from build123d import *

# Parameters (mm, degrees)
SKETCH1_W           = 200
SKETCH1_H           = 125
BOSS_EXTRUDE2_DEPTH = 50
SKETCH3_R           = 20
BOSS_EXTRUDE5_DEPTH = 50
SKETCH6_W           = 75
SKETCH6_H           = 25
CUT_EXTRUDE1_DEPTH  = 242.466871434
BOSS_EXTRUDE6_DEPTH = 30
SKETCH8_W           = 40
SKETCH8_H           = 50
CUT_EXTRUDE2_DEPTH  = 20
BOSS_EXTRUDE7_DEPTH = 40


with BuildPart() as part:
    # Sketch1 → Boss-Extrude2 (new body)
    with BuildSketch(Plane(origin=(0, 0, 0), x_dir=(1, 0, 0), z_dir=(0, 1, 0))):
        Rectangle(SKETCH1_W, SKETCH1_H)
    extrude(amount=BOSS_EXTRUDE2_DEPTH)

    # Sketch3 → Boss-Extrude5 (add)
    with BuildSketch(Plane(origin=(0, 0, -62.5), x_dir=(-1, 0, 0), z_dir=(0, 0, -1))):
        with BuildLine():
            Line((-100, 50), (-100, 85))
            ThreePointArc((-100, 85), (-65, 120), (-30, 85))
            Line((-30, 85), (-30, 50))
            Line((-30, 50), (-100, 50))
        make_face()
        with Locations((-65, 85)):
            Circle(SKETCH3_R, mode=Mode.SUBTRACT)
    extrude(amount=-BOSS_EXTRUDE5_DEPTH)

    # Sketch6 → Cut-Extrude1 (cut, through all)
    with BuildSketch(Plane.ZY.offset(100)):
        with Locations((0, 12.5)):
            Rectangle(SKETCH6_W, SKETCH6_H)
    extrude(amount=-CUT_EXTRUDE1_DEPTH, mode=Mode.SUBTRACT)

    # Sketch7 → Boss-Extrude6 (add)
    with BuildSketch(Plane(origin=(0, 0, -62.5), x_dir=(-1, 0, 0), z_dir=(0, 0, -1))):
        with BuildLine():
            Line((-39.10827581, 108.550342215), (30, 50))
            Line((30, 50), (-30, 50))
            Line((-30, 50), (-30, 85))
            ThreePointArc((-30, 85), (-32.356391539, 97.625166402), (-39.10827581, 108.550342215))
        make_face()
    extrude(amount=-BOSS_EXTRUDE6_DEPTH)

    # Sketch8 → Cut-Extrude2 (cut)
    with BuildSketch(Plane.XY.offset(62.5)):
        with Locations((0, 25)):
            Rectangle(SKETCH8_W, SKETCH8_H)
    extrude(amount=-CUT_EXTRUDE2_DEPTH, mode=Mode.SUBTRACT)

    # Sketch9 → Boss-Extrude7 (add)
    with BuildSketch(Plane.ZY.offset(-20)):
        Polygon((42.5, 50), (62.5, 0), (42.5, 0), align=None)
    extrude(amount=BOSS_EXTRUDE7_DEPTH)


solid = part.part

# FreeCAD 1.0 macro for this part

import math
import FreeCAD as App
import Part
import Sketcher
Q = App.Units.Quantity


def add_polygon(sketch, points):
    """Adds a closed chain of lines whose ends are joined by coincident constraints."""
    first, n = sketch.GeometryCount, len(points)
    for a, b in zip(points, points[1:] + points[:1]):
        sketch.addGeometry(Part.LineSegment(App.Vector(*a, 0), App.Vector(*b, 0)), False)
    for i in range(n):
        sketch.addConstraint(Sketcher.Constraint("Coincident", first + i, 2, first + (i + 1) % n, 1))

doc = App.newDocument("Part")
body = doc.addObject("PartDesign::Body", "Body")

# Sketch on XZ plane
sketch1 = doc.addObject("Sketcher::SketchObject", "Sketch")
body.addObject(sketch1)
sketch1.AttachmentSupport = (doc.XZ_Plane, [""])
sketch1.MapMode = "FlatFace"
add_polygon(sketch1, [(-100, -62), (-100, 62), (100, 62), (100, -62)])  # lines 0-3
sketch1.addConstraint([
    Sketcher.Constraint("Vertical", 0),
    Sketcher.Constraint("Horizontal", 1),
    Sketcher.Constraint("Vertical", 2),
    Sketcher.Constraint("Horizontal", 3),
    Sketcher.Constraint("Symmetric", 0, 2, 2, 2, -1, 1),
    Sketcher.Constraint("DistanceX", 1, 1, 1, 2, Q("200 mm")),
    Sketcher.Constraint("DistanceY", 0, 1, 0, 2, Q("125 mm")),
])
pad1 = doc.addObject("PartDesign::Pad", "Pad")
body.addObject(pad1)
pad1.Profile = sketch1
pad1.Length = 50
pad1.Reversed = True

# Sketch on XY plane
sketch2 = doc.addObject("Sketcher::SketchObject", "Sketch001")
body.addObject(sketch2)
sketch2.AttachmentSupport = (doc.XY_Plane, [""])
sketch2.MapMode = "FlatFace"
sketch2.AttachmentOffset = App.Placement(App.Vector(0, 0, -62.5), App.Rotation())
sketch2.addGeometry([
    Part.LineSegment(App.Vector(100, 85, 0), App.Vector(100, 50, 0)),  # 0
    Part.LineSegment(App.Vector(100, 50, 0), App.Vector(30, 50, 0)),  # 1
    Part.LineSegment(App.Vector(30, 50, 0), App.Vector(30, 85, 0)),  # 2
    Part.ArcOfCircle(Part.Circle(App.Vector(65, 85, 0), App.Vector(0, 0, 1), 35), math.radians(0), math.radians(180)),  # 3
    Part.Circle(App.Vector(65, 85, 0), App.Vector(0, 0, 1), 20),  # 4
], False)
sketch2.addConstraint([
    Sketcher.Constraint("Coincident", 0, 2, 1, 1),
    Sketcher.Constraint("Coincident", 1, 2, 2, 1),
    Sketcher.Constraint("Tangent", 2, 2, 3, 2),
    Sketcher.Constraint("Tangent", 3, 1, 0, 1),
    Sketcher.Constraint("Vertical", 0),
    Sketcher.Constraint("Horizontal", 1),
    Sketcher.Constraint("Vertical", 2),
    Sketcher.Constraint("Coincident", 4, 3, 3, 3),
    Sketcher.Constraint("Diameter", 4, Q("40 mm")),
    Sketcher.Constraint("Radius", 3, Q("35 mm")),
    Sketcher.Constraint("DistanceY", 0, 2, 0, 1, Q("35 mm")),
    Sketcher.Constraint("DistanceX", -1, 1, 3, 3, Q("65 mm")),
    Sketcher.Constraint("DistanceY", -1, 1, 3, 3, Q("85 mm")),
])
pad2 = doc.addObject("PartDesign::Pad", "Pad001")
body.addObject(pad2)
pad2.Profile = sketch2
pad2.Length = 50

# Sketch on YZ plane
sketch3 = doc.addObject("Sketcher::SketchObject", "Sketch002")
body.addObject(sketch3)
sketch3.AttachmentSupport = (doc.YZ_Plane, [""])
sketch3.MapMode = "FlatFace"
sketch3.AttachmentOffset = App.Placement(App.Vector(0, 0, -100), App.Rotation())
add_polygon(sketch3, [(25, -38), (0, -38), (0, 38), (25, 38)])  # lines 0-3
sketch3.addConstraint([
    Sketcher.Constraint("Horizontal", 0),
    Sketcher.Constraint("Vertical", 1),
    Sketcher.Constraint("Horizontal", 2),
    Sketcher.Constraint("Vertical", 3),
    Sketcher.Constraint("Symmetric", 0, 2, 1, 2, -1, 1),
    Sketcher.Constraint("DistanceX", 0, 2, 0, 1, Q("25 mm")),
    Sketcher.Constraint("DistanceY", 1, 1, 1, 2, Q("75 mm")),
])
pocket1 = doc.addObject("PartDesign::Pocket", "Pocket")
body.addObject(pocket1)
pocket1.Profile = sketch3
pocket1.Type = "ThroughAll"
pocket1.Reversed = True

# Sketch on XY plane
sketch4 = doc.addObject("Sketcher::SketchObject", "Sketch003")
body.addObject(sketch4)
sketch4.AttachmentSupport = (doc.XY_Plane, [""])
sketch4.MapMode = "FlatFace"
sketch4.AttachmentOffset = App.Placement(App.Vector(0, 0, -62.5), App.Rotation())
sketch4.addGeometry([
    Part.LineSegment(App.Vector(-30, 50, 0), App.Vector(39, 109, 0)),
    Part.ArcOfCircle(Part.Circle(App.Vector(65, 85, 0), App.Vector(0, 0, 1), 35), math.radians(138), math.radians(180)),
    Part.LineSegment(App.Vector(30, 85, 0), App.Vector(30, 50, 0)),
    Part.LineSegment(App.Vector(30, 50, 0), App.Vector(-30, 50, 0)),
], False)
sketch4.addConstraint([
    Sketcher.Constraint("Coincident", 0, 2, 1, 1),
    Sketcher.Constraint("Tangent", 1, 2, 2, 1),
    Sketcher.Constraint("Coincident", 2, 2, 3, 1),
    Sketcher.Constraint("Coincident", 3, 2, 0, 1),
    Sketcher.Constraint("Vertical", 2),
    Sketcher.Constraint("Horizontal", 3),
    Sketcher.Constraint("Radius", 1, Q("35 mm")),
    Sketcher.Constraint("DistanceX", 3, 2, 3, 1, Q("60 mm")),
    Sketcher.Constraint("DistanceY", 2, 2, 2, 1, Q("35 mm")),
    Sketcher.Constraint("DistanceX", -1, 1, 1, 3, Q("65 mm")),
    Sketcher.Constraint("DistanceY", -1, 1, 1, 3, Q("85 mm")),
    Sketcher.Constraint("Distance", 0, Q("90.576467 mm")),
])
pad3 = doc.addObject("PartDesign::Pad", "Pad002")
body.addObject(pad3)
pad3.Profile = sketch4
pad3.Length = 30

# Sketch on XY plane
sketch5 = doc.addObject("Sketcher::SketchObject", "Sketch004")
body.addObject(sketch5)
sketch5.AttachmentSupport = (doc.XY_Plane, [""])
sketch5.MapMode = "FlatFace"
sketch5.AttachmentOffset = App.Placement(App.Vector(0, 0, 62.5), App.Rotation())
add_polygon(sketch5, [(-20, 50), (-20, 0), (20, 0), (20, 50)])  # lines 0-3
sketch5.addConstraint([
    Sketcher.Constraint("Vertical", 0),
    Sketcher.Constraint("Horizontal", 1),
    Sketcher.Constraint("Vertical", 2),
    Sketcher.Constraint("Horizontal", 3),
    Sketcher.Constraint("Symmetric", 0, 2, 1, 2, -1, 1),
    Sketcher.Constraint("DistanceX", 1, 1, 1, 2, Q("40 mm")),
    Sketcher.Constraint("DistanceY", 0, 2, 0, 1, Q("50 mm")),
])
pocket2 = doc.addObject("PartDesign::Pocket", "Pocket001")
body.addObject(pocket2)
pocket2.Profile = sketch5
pocket2.Length = 20

# Sketch on YZ plane
sketch6 = doc.addObject("Sketcher::SketchObject", "Sketch005")
body.addObject(sketch6)
sketch6.AttachmentSupport = (doc.YZ_Plane, [""])
sketch6.MapMode = "FlatFace"
sketch6.AttachmentOffset = App.Placement(App.Vector(0, 0, 20), App.Rotation())
add_polygon(sketch6, [(0, 62), (50, 42), (0, 42)])  # lines 0-2
sketch6.addConstraint([
    Sketcher.Constraint("Horizontal", 1),
    Sketcher.Constraint("Vertical", 2),
    Sketcher.Constraint("PointOnObject", 1, 2, -2),
    Sketcher.Constraint("DistanceX", 1, 2, 1, 1, Q("50 mm")),
    Sketcher.Constraint("DistanceY", 2, 1, 2, 2, Q("20 mm")),
    Sketcher.Constraint("DistanceY", -1, 1, 0, 2, Q("42.5 mm")),
])
pad4 = doc.addObject("PartDesign::Pad", "Pad003")
body.addObject(pad4)
pad4.Profile = sketch6
pad4.Length = 40
pad4.Reversed = True

doc.recompute()
